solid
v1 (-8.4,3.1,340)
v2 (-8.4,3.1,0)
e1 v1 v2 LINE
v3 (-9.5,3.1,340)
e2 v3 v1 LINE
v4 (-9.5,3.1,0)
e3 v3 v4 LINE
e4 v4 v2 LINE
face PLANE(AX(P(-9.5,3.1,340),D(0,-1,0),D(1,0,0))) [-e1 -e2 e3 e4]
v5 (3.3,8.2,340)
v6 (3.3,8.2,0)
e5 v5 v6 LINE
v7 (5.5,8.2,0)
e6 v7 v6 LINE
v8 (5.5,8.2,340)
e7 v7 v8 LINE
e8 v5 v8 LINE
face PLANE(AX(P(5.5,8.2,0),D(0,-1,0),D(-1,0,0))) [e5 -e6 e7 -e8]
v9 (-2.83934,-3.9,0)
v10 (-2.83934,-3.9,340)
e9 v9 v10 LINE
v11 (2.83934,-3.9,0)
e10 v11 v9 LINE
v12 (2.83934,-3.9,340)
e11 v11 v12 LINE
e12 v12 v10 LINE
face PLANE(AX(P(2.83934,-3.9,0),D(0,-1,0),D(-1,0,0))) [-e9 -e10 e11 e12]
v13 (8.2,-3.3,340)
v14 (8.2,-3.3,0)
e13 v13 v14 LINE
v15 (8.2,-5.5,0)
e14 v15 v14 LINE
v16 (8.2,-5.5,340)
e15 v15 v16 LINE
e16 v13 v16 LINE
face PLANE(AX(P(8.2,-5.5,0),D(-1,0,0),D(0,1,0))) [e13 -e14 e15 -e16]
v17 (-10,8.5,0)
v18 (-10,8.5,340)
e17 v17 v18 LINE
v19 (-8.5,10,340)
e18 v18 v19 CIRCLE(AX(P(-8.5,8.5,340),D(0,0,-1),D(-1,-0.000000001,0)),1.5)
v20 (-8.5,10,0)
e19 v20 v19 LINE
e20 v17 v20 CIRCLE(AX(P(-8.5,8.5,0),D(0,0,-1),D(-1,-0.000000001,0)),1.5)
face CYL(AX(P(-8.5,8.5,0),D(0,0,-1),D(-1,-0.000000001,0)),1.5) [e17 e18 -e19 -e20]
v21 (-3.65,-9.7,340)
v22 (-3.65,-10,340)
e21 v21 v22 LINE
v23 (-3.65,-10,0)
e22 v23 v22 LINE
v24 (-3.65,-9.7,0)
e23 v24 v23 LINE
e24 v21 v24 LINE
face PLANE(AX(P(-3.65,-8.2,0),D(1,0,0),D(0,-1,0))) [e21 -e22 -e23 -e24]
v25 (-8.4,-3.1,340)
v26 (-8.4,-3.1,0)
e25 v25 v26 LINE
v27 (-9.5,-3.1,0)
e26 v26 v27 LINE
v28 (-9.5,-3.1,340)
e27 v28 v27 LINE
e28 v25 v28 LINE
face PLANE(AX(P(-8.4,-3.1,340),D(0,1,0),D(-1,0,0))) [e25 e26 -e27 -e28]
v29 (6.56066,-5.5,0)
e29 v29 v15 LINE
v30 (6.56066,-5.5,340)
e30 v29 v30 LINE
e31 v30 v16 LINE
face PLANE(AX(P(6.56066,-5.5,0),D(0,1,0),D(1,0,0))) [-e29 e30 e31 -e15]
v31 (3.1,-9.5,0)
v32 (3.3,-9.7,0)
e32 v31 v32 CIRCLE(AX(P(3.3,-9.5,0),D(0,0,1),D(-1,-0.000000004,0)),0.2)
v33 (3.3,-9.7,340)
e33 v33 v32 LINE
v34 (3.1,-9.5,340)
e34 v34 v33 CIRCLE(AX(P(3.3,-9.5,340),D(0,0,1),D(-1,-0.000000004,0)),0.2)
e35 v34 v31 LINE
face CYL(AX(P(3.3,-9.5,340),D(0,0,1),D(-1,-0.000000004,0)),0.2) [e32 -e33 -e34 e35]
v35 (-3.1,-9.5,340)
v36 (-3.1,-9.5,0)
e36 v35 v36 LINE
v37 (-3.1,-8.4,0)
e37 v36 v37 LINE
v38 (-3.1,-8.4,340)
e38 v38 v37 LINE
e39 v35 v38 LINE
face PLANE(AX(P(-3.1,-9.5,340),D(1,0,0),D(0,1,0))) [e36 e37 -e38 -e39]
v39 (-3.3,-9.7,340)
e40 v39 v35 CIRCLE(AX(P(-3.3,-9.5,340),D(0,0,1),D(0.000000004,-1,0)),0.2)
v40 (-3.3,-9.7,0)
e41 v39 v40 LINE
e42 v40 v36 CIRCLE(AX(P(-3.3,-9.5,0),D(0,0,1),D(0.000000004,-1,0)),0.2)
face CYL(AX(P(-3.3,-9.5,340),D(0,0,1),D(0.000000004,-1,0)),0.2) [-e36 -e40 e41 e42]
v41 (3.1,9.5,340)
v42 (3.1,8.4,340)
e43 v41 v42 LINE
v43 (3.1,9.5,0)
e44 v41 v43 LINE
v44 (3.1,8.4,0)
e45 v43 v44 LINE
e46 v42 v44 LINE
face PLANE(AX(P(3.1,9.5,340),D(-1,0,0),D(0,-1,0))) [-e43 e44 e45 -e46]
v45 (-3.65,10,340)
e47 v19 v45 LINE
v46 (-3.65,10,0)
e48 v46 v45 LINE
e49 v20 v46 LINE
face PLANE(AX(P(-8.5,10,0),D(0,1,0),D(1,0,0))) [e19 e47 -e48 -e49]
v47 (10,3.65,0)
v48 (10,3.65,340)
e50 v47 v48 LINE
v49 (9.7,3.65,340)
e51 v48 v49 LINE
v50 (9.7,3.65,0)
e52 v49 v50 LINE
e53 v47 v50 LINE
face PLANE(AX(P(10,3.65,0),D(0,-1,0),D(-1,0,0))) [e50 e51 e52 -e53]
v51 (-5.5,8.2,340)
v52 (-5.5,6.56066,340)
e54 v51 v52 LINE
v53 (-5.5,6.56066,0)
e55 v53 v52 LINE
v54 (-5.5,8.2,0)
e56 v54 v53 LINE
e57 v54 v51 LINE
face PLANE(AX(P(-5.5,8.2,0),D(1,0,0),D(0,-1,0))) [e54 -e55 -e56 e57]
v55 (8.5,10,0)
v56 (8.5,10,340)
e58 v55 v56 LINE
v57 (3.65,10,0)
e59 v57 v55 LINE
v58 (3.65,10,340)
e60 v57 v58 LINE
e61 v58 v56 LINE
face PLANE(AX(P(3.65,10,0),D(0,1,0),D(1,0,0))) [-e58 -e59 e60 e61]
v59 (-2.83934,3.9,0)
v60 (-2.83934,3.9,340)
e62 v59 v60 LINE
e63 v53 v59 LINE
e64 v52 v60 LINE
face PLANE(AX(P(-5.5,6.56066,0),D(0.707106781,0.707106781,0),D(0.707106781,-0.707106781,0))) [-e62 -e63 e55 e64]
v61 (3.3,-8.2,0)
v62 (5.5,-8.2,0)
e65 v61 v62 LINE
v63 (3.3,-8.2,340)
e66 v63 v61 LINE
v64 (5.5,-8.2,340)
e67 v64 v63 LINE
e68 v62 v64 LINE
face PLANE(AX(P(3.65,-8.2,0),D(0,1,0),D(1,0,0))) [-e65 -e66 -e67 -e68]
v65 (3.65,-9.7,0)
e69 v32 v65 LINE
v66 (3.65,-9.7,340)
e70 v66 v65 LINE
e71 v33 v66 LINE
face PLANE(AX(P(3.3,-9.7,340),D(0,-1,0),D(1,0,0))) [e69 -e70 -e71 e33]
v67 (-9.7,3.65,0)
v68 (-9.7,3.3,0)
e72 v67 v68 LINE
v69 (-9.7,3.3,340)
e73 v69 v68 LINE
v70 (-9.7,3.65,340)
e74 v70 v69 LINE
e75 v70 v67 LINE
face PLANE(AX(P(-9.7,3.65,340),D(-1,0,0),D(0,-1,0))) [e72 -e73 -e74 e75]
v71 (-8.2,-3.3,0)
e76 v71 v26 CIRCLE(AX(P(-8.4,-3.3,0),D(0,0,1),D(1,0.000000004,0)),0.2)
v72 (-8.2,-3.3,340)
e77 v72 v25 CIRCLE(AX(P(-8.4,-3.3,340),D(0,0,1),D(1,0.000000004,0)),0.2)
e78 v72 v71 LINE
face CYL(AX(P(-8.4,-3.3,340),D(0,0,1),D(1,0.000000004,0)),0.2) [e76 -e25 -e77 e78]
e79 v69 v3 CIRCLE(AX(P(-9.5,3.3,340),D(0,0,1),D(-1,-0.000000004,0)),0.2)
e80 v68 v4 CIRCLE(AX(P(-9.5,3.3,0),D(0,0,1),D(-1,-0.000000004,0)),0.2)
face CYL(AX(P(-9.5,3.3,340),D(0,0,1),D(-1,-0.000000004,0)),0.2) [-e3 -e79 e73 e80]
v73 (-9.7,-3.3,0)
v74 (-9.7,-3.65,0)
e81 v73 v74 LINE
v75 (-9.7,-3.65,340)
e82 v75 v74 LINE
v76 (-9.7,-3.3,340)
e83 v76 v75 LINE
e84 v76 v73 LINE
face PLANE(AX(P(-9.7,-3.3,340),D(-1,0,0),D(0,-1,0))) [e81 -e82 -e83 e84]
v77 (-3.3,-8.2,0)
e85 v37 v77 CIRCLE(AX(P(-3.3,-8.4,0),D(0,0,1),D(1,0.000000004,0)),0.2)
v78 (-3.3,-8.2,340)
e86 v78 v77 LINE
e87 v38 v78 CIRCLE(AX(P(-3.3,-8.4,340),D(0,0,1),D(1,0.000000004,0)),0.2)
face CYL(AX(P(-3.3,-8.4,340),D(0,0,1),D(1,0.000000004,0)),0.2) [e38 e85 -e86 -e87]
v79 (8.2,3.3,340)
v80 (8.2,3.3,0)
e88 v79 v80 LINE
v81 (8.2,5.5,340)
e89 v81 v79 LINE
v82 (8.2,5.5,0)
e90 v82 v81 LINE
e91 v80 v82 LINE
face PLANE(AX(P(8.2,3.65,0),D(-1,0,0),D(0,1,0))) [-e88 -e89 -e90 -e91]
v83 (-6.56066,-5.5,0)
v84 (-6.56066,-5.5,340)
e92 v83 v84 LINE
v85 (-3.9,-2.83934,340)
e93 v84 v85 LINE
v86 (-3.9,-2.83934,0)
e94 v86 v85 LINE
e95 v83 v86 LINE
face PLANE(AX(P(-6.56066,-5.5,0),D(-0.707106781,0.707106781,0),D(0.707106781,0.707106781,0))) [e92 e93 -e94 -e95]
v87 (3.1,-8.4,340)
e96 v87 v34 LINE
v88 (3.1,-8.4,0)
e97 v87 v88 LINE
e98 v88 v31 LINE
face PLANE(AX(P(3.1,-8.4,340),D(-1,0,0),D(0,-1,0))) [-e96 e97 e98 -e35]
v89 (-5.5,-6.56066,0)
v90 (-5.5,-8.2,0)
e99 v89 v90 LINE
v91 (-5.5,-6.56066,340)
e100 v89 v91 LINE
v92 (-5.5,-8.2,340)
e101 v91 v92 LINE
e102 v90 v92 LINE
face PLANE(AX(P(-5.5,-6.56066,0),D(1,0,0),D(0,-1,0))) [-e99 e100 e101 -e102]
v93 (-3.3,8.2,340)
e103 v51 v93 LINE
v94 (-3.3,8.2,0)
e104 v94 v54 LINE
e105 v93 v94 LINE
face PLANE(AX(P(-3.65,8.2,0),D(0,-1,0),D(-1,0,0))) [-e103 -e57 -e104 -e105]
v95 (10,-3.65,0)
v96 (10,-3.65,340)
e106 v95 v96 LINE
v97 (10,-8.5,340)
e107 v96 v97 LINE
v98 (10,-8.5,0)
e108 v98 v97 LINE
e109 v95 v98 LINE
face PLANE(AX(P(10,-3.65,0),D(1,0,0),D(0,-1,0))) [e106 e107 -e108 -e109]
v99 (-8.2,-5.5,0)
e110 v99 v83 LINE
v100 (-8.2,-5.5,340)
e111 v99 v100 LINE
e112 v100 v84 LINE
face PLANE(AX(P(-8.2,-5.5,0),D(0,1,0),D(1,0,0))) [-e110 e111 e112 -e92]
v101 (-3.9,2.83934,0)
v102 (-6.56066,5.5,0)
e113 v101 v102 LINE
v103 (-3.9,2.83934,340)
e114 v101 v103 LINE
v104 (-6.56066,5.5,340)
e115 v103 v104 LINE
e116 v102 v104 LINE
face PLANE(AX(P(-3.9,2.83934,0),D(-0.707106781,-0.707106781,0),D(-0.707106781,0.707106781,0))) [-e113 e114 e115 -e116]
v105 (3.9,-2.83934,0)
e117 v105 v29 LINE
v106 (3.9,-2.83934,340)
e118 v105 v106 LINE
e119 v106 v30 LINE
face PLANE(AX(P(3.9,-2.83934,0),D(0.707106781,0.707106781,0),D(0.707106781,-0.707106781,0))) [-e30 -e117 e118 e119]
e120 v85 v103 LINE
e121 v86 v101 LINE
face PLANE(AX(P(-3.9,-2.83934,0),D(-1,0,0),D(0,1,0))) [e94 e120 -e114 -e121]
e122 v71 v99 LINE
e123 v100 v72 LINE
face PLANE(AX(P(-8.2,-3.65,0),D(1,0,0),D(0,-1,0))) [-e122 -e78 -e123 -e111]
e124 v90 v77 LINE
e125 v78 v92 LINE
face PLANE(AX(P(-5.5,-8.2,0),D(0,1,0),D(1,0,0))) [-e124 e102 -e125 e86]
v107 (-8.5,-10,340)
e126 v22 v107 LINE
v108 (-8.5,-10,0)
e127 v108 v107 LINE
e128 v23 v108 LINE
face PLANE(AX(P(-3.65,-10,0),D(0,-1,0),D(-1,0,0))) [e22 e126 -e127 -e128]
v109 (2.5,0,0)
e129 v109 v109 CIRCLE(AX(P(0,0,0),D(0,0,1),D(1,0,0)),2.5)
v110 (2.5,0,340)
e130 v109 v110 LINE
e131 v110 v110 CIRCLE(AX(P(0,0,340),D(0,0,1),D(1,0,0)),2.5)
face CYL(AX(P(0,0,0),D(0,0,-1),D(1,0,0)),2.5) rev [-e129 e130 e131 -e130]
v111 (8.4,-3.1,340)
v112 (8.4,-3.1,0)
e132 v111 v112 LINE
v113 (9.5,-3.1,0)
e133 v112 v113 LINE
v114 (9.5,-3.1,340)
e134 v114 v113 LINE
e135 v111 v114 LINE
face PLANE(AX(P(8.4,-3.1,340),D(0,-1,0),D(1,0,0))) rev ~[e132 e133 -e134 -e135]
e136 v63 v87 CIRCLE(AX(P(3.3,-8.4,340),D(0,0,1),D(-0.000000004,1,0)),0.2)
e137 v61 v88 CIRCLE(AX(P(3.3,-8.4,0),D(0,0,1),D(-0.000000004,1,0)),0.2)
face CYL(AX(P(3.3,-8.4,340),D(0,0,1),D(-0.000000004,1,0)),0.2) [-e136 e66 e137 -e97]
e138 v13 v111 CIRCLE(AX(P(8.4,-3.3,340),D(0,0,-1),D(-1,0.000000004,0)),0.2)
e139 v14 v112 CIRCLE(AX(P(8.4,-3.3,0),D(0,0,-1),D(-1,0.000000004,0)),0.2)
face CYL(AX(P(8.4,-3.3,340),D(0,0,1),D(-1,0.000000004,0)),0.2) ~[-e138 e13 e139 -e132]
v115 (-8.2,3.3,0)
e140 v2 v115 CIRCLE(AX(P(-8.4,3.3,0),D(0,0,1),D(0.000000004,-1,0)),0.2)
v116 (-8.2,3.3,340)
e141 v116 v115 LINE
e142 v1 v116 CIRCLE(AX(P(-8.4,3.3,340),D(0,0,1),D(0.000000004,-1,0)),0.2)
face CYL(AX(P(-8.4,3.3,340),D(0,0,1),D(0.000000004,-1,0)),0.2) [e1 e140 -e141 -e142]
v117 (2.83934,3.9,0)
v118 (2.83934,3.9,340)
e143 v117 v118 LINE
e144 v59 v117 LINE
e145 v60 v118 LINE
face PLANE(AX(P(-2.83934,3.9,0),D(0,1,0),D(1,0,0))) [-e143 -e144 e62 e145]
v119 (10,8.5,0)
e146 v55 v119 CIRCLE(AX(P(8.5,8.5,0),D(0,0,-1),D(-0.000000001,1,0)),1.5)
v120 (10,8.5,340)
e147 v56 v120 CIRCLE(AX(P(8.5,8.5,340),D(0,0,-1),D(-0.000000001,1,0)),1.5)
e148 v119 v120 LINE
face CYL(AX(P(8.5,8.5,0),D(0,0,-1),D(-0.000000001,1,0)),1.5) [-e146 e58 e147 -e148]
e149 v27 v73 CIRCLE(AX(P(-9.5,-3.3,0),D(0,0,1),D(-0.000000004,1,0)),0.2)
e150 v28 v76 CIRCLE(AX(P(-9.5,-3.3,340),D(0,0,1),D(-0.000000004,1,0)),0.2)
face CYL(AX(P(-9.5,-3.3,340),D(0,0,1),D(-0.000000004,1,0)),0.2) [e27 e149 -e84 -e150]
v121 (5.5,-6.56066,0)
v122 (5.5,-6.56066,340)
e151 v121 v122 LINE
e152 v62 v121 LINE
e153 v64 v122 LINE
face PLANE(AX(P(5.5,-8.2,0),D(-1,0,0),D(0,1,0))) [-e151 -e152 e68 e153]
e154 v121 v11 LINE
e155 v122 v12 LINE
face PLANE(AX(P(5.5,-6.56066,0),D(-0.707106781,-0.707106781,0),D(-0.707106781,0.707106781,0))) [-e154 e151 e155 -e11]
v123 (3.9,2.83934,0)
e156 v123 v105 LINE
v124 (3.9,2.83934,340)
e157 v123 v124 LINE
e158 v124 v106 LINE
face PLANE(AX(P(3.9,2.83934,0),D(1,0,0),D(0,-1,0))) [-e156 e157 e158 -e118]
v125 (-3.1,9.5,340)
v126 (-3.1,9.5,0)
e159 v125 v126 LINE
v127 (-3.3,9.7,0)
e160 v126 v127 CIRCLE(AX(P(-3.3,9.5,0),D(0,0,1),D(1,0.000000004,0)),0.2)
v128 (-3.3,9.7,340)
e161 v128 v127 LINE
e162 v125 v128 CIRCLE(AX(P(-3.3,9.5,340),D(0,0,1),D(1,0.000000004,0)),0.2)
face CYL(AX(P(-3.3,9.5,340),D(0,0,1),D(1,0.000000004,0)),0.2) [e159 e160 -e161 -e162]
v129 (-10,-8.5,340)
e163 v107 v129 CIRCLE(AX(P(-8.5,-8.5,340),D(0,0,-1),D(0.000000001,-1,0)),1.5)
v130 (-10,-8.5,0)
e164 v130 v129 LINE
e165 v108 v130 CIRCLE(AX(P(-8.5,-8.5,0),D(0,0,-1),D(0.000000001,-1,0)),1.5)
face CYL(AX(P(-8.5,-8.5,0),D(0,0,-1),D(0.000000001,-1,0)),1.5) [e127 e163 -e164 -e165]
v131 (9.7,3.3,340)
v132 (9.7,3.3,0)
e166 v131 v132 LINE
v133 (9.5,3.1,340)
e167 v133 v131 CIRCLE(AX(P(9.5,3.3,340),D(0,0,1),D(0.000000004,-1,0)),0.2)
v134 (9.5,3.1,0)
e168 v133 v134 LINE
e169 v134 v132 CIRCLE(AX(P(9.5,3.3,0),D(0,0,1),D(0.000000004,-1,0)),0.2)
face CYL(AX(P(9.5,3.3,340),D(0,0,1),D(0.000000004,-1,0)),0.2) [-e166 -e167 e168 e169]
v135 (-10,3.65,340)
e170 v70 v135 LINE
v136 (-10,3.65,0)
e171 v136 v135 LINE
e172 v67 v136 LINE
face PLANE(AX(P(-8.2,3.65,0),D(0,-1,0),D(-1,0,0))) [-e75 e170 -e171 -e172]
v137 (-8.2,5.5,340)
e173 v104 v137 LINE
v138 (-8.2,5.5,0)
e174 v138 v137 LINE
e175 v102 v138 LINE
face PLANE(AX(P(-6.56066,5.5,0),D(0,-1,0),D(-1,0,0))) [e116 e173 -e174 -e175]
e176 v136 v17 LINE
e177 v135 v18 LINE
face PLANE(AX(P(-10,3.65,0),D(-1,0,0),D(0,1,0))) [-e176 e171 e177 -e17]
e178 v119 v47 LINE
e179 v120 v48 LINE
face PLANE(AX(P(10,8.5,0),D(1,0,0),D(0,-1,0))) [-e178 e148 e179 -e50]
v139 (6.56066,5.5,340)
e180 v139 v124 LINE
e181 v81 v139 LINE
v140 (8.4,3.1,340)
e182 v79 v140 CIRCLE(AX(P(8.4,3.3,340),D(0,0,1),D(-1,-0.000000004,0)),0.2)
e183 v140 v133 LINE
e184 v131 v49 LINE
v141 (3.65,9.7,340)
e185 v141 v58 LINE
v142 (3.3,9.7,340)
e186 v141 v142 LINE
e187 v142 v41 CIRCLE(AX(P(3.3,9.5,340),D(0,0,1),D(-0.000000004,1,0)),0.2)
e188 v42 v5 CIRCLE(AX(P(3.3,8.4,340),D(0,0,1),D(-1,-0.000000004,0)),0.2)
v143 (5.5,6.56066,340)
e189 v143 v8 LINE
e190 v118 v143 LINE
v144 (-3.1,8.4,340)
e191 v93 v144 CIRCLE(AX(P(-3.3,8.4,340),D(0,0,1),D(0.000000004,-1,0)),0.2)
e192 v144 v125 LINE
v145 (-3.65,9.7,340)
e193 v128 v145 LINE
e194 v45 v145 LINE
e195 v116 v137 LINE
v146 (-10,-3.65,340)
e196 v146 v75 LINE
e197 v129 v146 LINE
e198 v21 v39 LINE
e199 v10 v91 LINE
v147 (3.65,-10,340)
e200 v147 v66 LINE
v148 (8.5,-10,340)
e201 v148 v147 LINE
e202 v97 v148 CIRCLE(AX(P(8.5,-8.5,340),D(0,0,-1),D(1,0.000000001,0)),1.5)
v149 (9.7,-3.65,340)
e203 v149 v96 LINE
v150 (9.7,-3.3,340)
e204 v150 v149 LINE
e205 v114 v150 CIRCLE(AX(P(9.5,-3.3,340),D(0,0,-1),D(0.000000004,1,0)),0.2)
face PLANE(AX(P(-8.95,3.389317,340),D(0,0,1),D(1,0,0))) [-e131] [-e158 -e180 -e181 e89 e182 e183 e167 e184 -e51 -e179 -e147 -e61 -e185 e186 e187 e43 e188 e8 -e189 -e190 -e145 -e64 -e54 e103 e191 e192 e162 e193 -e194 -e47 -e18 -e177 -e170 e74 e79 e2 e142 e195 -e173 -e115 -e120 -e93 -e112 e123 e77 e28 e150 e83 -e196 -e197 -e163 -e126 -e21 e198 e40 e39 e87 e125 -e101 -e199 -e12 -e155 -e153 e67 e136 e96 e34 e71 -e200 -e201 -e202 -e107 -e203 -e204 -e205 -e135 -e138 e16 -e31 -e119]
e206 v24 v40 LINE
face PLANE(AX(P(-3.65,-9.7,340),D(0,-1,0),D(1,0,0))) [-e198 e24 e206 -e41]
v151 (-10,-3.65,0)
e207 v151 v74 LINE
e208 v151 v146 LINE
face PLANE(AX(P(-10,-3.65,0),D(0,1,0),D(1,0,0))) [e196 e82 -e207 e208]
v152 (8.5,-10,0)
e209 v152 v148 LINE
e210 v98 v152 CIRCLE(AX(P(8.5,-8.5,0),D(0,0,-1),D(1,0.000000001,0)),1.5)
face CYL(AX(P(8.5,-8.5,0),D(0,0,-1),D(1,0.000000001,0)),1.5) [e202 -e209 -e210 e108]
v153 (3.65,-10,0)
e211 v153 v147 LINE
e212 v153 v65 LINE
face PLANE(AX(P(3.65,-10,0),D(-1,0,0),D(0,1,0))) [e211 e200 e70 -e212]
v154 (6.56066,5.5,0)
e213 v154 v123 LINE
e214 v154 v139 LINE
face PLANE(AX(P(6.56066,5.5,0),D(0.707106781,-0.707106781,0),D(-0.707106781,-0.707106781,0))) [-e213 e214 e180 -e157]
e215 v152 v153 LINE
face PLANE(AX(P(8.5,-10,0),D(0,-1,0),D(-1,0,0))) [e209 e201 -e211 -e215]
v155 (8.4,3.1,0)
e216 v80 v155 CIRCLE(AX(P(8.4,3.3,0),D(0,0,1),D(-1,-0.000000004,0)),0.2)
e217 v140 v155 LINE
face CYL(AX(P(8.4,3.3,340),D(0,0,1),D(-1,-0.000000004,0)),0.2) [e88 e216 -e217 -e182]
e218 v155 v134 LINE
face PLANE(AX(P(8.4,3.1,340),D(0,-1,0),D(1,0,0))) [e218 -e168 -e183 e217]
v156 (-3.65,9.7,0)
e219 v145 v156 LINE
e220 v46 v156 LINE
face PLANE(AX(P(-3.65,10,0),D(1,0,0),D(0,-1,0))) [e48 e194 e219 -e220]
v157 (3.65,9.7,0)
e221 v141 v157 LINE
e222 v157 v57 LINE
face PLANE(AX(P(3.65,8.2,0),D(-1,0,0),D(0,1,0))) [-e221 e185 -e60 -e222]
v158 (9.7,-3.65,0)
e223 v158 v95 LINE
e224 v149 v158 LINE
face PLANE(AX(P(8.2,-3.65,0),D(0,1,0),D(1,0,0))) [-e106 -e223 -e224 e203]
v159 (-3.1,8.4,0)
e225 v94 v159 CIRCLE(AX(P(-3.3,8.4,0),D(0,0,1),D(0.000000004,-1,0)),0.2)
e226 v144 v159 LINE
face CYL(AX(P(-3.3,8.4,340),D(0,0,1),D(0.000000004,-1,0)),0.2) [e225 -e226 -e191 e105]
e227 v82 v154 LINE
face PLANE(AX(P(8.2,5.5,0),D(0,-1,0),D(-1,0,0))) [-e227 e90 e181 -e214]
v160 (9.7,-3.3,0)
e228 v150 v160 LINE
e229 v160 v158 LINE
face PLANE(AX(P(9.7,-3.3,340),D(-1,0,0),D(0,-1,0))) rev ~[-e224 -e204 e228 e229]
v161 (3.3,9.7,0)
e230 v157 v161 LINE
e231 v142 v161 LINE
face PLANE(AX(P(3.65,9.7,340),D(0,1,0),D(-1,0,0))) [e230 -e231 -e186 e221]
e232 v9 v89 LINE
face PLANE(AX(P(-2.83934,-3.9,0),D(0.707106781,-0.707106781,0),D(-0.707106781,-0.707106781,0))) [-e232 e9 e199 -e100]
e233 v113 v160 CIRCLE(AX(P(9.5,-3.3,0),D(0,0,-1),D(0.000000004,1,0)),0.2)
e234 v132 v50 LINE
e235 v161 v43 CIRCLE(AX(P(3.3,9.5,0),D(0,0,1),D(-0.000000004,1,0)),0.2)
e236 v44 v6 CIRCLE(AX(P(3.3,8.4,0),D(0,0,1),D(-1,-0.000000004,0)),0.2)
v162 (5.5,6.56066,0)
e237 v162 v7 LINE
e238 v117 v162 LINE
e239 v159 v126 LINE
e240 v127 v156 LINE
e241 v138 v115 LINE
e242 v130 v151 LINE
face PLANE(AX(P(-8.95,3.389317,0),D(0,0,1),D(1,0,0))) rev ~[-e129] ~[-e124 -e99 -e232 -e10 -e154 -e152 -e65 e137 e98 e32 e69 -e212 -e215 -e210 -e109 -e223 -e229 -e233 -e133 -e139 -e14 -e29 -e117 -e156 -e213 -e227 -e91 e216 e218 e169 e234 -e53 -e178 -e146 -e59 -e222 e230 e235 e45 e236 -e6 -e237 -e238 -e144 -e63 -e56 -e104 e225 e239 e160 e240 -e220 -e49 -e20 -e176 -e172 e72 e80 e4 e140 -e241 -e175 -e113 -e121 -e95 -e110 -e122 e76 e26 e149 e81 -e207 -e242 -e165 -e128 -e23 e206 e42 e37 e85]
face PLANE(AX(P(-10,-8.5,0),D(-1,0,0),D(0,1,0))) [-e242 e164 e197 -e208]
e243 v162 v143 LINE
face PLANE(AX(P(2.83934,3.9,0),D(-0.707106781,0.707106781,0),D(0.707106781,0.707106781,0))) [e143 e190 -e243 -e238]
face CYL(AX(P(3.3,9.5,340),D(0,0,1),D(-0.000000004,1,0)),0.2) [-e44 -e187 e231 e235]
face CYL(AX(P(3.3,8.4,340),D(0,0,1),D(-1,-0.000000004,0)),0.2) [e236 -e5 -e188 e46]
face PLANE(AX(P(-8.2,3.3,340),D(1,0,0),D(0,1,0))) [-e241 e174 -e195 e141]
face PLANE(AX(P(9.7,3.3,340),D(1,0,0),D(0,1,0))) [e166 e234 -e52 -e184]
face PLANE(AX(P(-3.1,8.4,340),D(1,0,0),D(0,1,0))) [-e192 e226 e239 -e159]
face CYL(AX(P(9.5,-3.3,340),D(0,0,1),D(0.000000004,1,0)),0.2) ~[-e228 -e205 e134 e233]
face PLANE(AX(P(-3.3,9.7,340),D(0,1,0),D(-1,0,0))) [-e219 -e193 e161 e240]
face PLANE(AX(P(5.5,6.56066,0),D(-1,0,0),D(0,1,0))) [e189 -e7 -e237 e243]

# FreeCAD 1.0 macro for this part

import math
import FreeCAD as App
import Part
import Sketcher

V = App.Vector
Q = App.Units.Quantity

doc = App.newDocument("Part")
params = doc.addObject("Spreadsheet::Sheet", "Params")
for row, (alias, value) in enumerate([
    ("sketch1_diameter", "5 mm"),
    ("sketch1_radius", "1.5 mm"),
    ("sketch1_width", "1.8 mm"),
    ("sketch1_width2", "4.85 mm"),
    ("pad1_length", "340 mm"),
    ("sketch2_radius", "0.2 mm"),
    ("sketch2_width", "1.5 mm"),
    ("sketch2_width2", "0.35 mm"),
    ("pad2_length", "340 mm"),
], start=1):
    params.set(f"A{row}", alias)
    params.set(f"B{row}", "=" + value)
    params.setAlias(f"B{row}", alias)

body = doc.addObject("PartDesign::Body", "Body")

# Sketch on XY plane
sketch1 = body.newObject("Sketcher::SketchObject", "Sketch")
sketch1.AttachmentSupport = (doc.getObject("XY_Plane"), [""])
sketch1.MapMode = "FlatFace"
sketch1.addGeometry(Part.LineSegment(V(8.5, 10, 0), V(3.6, 10, 0)), False)
sketch1.addGeometry(Part.LineSegment(V(3.6, 10, 0), V(3.6, 8.2, 0)), False)
sketch1.addGeometry(Part.LineSegment(V(3.6, 8.2, 0), V(5.5, 8.2, 0)), False)
sketch1.addGeometry(Part.LineSegment(V(5.5, 8.2, 0), V(5.5, 6.6, 0)), False)
sketch1.addGeometry(Part.LineSegment(V(5.5, 6.6, 0), V(2.8, 3.9, 0)), False)
sketch1.addGeometry(Part.LineSegment(V(2.8, 3.9, 0), V(-2.8, 3.9, 0)), False)
sketch1.addGeometry(Part.LineSegment(V(-2.8, 3.9, 0), V(-5.5, 6.6, 0)), False)
sketch1.addGeometry(Part.LineSegment(V(-5.5, 6.6, 0), V(-5.5, 8.2, 0)), False)
sketch1.addGeometry(Part.LineSegment(V(-5.5, 8.2, 0), V(-3.6, 8.2, 0)), False)
sketch1.addGeometry(Part.LineSegment(V(-3.6, 8.2, 0), V(-3.6, 10, 0)), False)
sketch1.addGeometry(Part.LineSegment(V(-3.6, 10, 0), V(-8.5, 10, 0)), False)
sketch1.addGeometry(Part.ArcOfCircle(Part.Circle(V(-8.5, 8.5, 0), V(0, 0, 1), 1.5), math.radians(90), math.radians(180)), False)
sketch1.addGeometry(Part.LineSegment(V(-10, 8.5, 0), V(-10, 3.6, 0)), False)
sketch1.addGeometry(Part.LineSegment(V(-10, 3.6, 0), V(-8.2, 3.6, 0)), False)
sketch1.addGeometry(Part.LineSegment(V(-8.2, 3.6, 0), V(-8.2, 5.5, 0)), False)
sketch1.addGeometry(Part.LineSegment(V(-8.2, 5.5, 0), V(-6.6, 5.5, 0)), False)
sketch1.addGeometry(Part.LineSegment(V(-6.6, 5.5, 0), V(-3.9, 2.8, 0)), False)
sketch1.addGeometry(Part.LineSegment(V(-3.9, 2.8, 0), V(-3.9, -2.8, 0)), False)
sketch1.addGeometry(Part.LineSegment(V(-3.9, -2.8, 0), V(-6.6, -5.5, 0)), False)
sketch1.addGeometry(Part.LineSegment(V(-6.6, -5.5, 0), V(-8.2, -5.5, 0)), False)
sketch1.addGeometry(Part.LineSegment(V(-8.2, -5.5, 0), V(-8.2, -3.6, 0)), False)
sketch1.addGeometry(Part.LineSegment(V(-8.2, -3.6, 0), V(-10, -3.6, 0)), False)
sketch1.addGeometry(Part.LineSegment(V(-10, -3.6, 0), V(-10, -8.5, 0)), False)
sketch1.addGeometry(Part.ArcOfCircle(Part.Circle(V(-8.5, -8.5, 0), V(0, 0, 1), 1.5), math.radians(180), math.radians(270)), False)
sketch1.addGeometry(Part.LineSegment(V(-8.5, -10, 0), V(-3.6, -10, 0)), False)
sketch1.addGeometry(Part.LineSegment(V(-3.6, -10, 0), V(-3.6, -8.2, 0)), False)
sketch1.addGeometry(Part.LineSegment(V(-3.6, -8.2, 0), V(-5.5, -8.2, 0)), False)
sketch1.addGeometry(Part.LineSegment(V(-5.5, -8.2, 0), V(-5.5, -6.6, 0)), False)
sketch1.addGeometry(Part.LineSegment(V(-5.5, -6.6, 0), V(-2.8, -3.9, 0)), False)
sketch1.addGeometry(Part.LineSegment(V(-2.8, -3.9, 0), V(2.8, -3.9, 0)), False)
sketch1.addGeometry(Part.LineSegment(V(2.8, -3.9, 0), V(5.5, -6.6, 0)), False)
sketch1.addGeometry(Part.LineSegment(V(5.5, -6.6, 0), V(5.5, -8.2, 0)), False)
sketch1.addGeometry(Part.LineSegment(V(5.5, -8.2, 0), V(3.6, -8.2, 0)), False)
sketch1.addGeometry(Part.LineSegment(V(3.6, -8.2, 0), V(3.6, -10, 0)), False)
sketch1.addGeometry(Part.LineSegment(V(3.6, -10, 0), V(8.5, -10, 0)), False)
sketch1.addGeometry(Part.ArcOfCircle(Part.Circle(V(8.5, -8.5, 0), V(0, 0, 1), 1.5), math.radians(-90), math.radians(0)), False)
sketch1.addGeometry(Part.LineSegment(V(10, -8.5, 0), V(10, -3.6, 0)), False)
sketch1.addGeometry(Part.LineSegment(V(10, -3.6, 0), V(8.2, -3.6, 0)), False)
sketch1.addGeometry(Part.LineSegment(V(8.2, -3.6, 0), V(8.2, -5.5, 0)), False)
sketch1.addGeometry(Part.LineSegment(V(8.2, -5.5, 0), V(6.6, -5.5, 0)), False)
sketch1.addGeometry(Part.LineSegment(V(6.6, -5.5, 0), V(3.9, -2.8, 0)), False)
sketch1.addGeometry(Part.LineSegment(V(3.9, -2.8, 0), V(3.9, 2.8, 0)), False)
sketch1.addGeometry(Part.LineSegment(V(3.9, 2.8, 0), V(6.6, 5.5, 0)), False)
sketch1.addGeometry(Part.LineSegment(V(6.6, 5.5, 0), V(8.2, 5.5, 0)), False)
sketch1.addGeometry(Part.LineSegment(V(8.2, 5.5, 0), V(8.2, 3.6, 0)), False)
sketch1.addGeometry(Part.LineSegment(V(8.2, 3.6, 0), V(10, 3.6, 0)), False)
sketch1.addGeometry(Part.LineSegment(V(10, 3.6, 0), V(10, 8.5, 0)), False)
sketch1.addGeometry(Part.ArcOfCircle(Part.Circle(V(8.5, 8.5, 0), V(0, 0, 1), 1.5), math.radians(0), math.radians(90)), False)
sketch1.addGeometry(Part.Circle(V(0, 0, 0), V(0, 0, 1), 2.5), False)
sketch1.addConstraint(Sketcher.Constraint("Coincident", 0, 2, 1, 1))
sketch1.addConstraint(Sketcher.Constraint("Coincident", 1, 2, 2, 1))
sketch1.addConstraint(Sketcher.Constraint("Coincident", 2, 2, 3, 1))
sketch1.addConstraint(Sketcher.Constraint("Coincident", 3, 2, 4, 1))
sketch1.addConstraint(Sketcher.Constraint("Coincident", 4, 2, 5, 1))
sketch1.addConstraint(Sketcher.Constraint("Coincident", 5, 2, 6, 1))
sketch1.addConstraint(Sketcher.Constraint("Coincident", 6, 2, 7, 1))
sketch1.addConstraint(Sketcher.Constraint("Coincident", 7, 2, 8, 1))
sketch1.addConstraint(Sketcher.Constraint("Coincident", 8, 2, 9, 1))
sketch1.addConstraint(Sketcher.Constraint("Coincident", 9, 2, 10, 1))
sketch1.addConstraint(Sketcher.Constraint("Tangent", 10, 2, 11, 1))
sketch1.addConstraint(Sketcher.Constraint("Tangent", 11, 2, 12, 1))
sketch1.addConstraint(Sketcher.Constraint("Coincident", 12, 2, 13, 1))
sketch1.addConstraint(Sketcher.Constraint("Coincident", 13, 2, 14, 1))
sketch1.addConstraint(Sketcher.Constraint("Coincident", 14, 2, 15, 1))
sketch1.addConstraint(Sketcher.Constraint("Coincident", 15, 2, 16, 1))
sketch1.addConstraint(Sketcher.Constraint("Coincident", 16, 2, 17, 1))
sketch1.addConstraint(Sketcher.Constraint("Coincident", 17, 2, 18, 1))
sketch1.addConstraint(Sketcher.Constraint("Coincident", 18, 2, 19, 1))
sketch1.addConstraint(Sketcher.Constraint("Coincident", 19, 2, 20, 1))
sketch1.addConstraint(Sketcher.Constraint("Coincident", 20, 2, 21, 1))
sketch1.addConstraint(Sketcher.Constraint("Coincident", 21, 2, 22, 1))
sketch1.addConstraint(Sketcher.Constraint("Tangent", 22, 2, 23, 1))
sketch1.addConstraint(Sketcher.Constraint("Tangent", 23, 2, 24, 1))
sketch1.addConstraint(Sketcher.Constraint("Coincident", 24, 2, 25, 1))
sketch1.addConstraint(Sketcher.Constraint("Coincident", 25, 2, 26, 1))
sketch1.addConstraint(Sketcher.Constraint("Coincident", 26, 2, 27, 1))
sketch1.addConstraint(Sketcher.Constraint("Coincident", 27, 2, 28, 1))
sketch1.addConstraint(Sketcher.Constraint("Coincident", 28, 2, 29, 1))
sketch1.addConstraint(Sketcher.Constraint("Coincident", 29, 2, 30, 1))
sketch1.addConstraint(Sketcher.Constraint("Coincident", 30, 2, 31, 1))
sketch1.addConstraint(Sketcher.Constraint("Coincident", 31, 2, 32, 1))
sketch1.addConstraint(Sketcher.Constraint("Coincident", 32, 2, 33, 1))
sketch1.addConstraint(Sketcher.Constraint("Coincident", 33, 2, 34, 1))
sketch1.addConstraint(Sketcher.Constraint("Tangent", 34, 2, 35, 1))
sketch1.addConstraint(Sketcher.Constraint("Tangent", 35, 2, 36, 1))
sketch1.addConstraint(Sketcher.Constraint("Coincident", 36, 2, 37, 1))
sketch1.addConstraint(Sketcher.Constraint("Coincident", 37, 2, 38, 1))
sketch1.addConstraint(Sketcher.Constraint("Coincident", 38, 2, 39, 1))
sketch1.addConstraint(Sketcher.Constraint("Coincident", 39, 2, 40, 1))
sketch1.addConstraint(Sketcher.Constraint("Coincident", 40, 2, 41, 1))
sketch1.addConstraint(Sketcher.Constraint("Coincident", 41, 2, 42, 1))
sketch1.addConstraint(Sketcher.Constraint("Coincident", 42, 2, 43, 1))
sketch1.addConstraint(Sketcher.Constraint("Coincident", 43, 2, 44, 1))
sketch1.addConstraint(Sketcher.Constraint("Coincident", 44, 2, 45, 1))
sketch1.addConstraint(Sketcher.Constraint("Coincident", 45, 2, 46, 1))
sketch1.addConstraint(Sketcher.Constraint("Tangent", 46, 2, 47, 1))
sketch1.addConstraint(Sketcher.Constraint("Tangent", 47, 2, 0, 1))
sketch1.addConstraint(Sketcher.Constraint("Horizontal", 0))
sketch1.addConstraint(Sketcher.Constraint("Vertical", 1))
sketch1.addConstraint(Sketcher.Constraint("Horizontal", 2))
sketch1.addConstraint(Sketcher.Constraint("Vertical", 3))
sketch1.addConstraint(Sketcher.Constraint("Horizontal", 5))
sketch1.addConstraint(Sketcher.Constraint("Vertical", 7))
sketch1.addConstraint(Sketcher.Constraint("Horizontal", 8))
sketch1.addConstraint(Sketcher.Constraint("Vertical", 9))
sketch1.addConstraint(Sketcher.Constraint("Horizontal", 10))
sketch1.addConstraint(Sketcher.Constraint("Vertical", 12))
sketch1.addConstraint(Sketcher.Constraint("Horizontal", 13))
sketch1.addConstraint(Sketcher.Constraint("Vertical", 14))
sketch1.addConstraint(Sketcher.Constraint("Horizontal", 15))
sketch1.addConstraint(Sketcher.Constraint("Vertical", 17))
sketch1.addConstraint(Sketcher.Constraint("Horizontal", 19))
sketch1.addConstraint(Sketcher.Constraint("Vertical", 20))
sketch1.addConstraint(Sketcher.Constraint("Horizontal", 21))
sketch1.addConstraint(Sketcher.Constraint("Vertical", 22))
sketch1.addConstraint(Sketcher.Constraint("Horizontal", 24))
sketch1.addConstraint(Sketcher.Constraint("Vertical", 25))
sketch1.addConstraint(Sketcher.Constraint("Horizontal", 26))
sketch1.addConstraint(Sketcher.Constraint("Vertical", 27))
sketch1.addConstraint(Sketcher.Constraint("Horizontal", 29))
sketch1.addConstraint(Sketcher.Constraint("Vertical", 31))
sketch1.addConstraint(Sketcher.Constraint("Horizontal", 32))
sketch1.addConstraint(Sketcher.Constraint("Vertical", 33))
sketch1.addConstraint(Sketcher.Constraint("Horizontal", 34))
sketch1.addConstraint(Sketcher.Constraint("Vertical", 36))
sketch1.addConstraint(Sketcher.Constraint("Horizontal", 37))
sketch1.addConstraint(Sketcher.Constraint("Vertical", 38))
sketch1.addConstraint(Sketcher.Constraint("Horizontal", 39))
sketch1.addConstraint(Sketcher.Constraint("Vertical", 41))
sketch1.addConstraint(Sketcher.Constraint("Horizontal", 43))
sketch1.addConstraint(Sketcher.Constraint("Vertical", 44))
sketch1.addConstraint(Sketcher.Constraint("Horizontal", 45))
sketch1.addConstraint(Sketcher.Constraint("Vertical", 46))
sketch1.addConstraint(Sketcher.Constraint("Coincident", 48, 3, -1, 1))
sketch1.addConstraint(Sketcher.Constraint("Equal", 11, 23))
sketch1.addConstraint(Sketcher.Constraint("Equal", 23, 35))
sketch1.addConstraint(Sketcher.Constraint("Equal", 35, 47))
sketch1.addConstraint(Sketcher.Constraint("Symmetric", 11, 3, 35, 3, -1, 1))
sketch1.addConstraint(Sketcher.Constraint("Symmetric", 23, 3, 47, 3, -1, 1))
sketch1.addConstraint(Sketcher.Constraint("Symmetric", 1, 2, 25, 2, -1, 1))
sketch1.addConstraint(Sketcher.Constraint("Symmetric", 3, 2, 27, 2, -1, 1))
sketch1.addConstraint(Sketcher.Constraint("Symmetric", 4, 2, 28, 2, -1, 1))
sketch1.addConstraint(Sketcher.Constraint("Symmetric", 6, 2, 30, 2, -1, 1))
sketch1.addConstraint(Sketcher.Constraint("Symmetric", 8, 2, 32, 2, -1, 1))
sketch1.addConstraint(Sketcher.Constraint("Symmetric", 13, 2, 37, 2, -1, 1))
sketch1.addConstraint(Sketcher.Constraint("Symmetric", 15, 2, 39, 2, -1, 1))
sketch1.addConstraint(Sketcher.Constraint("Symmetric", 16, 2, 40, 2, -1, 1))
sketch1.addConstraint(Sketcher.Constraint("Symmetric", 18, 2, 42, 2, -1, 1))
sketch1.addConstraint(Sketcher.Constraint("Symmetric", 20, 2, 44, 2, -1, 1))
sketch1.addConstraint(Sketcher.Constraint("Symmetric", 23, 3, 35, 3, -2))
sketch1.addConstraint(Sketcher.Constraint("Symmetric", 3, 2, 6, 2, -2))
sketch1.addConstraint(Sketcher.Constraint("Symmetric", 1, 2, 8, 2, -2))
sketch1.addConstraint(Sketcher.Constraint("Symmetric", 20, 2, 37, 2, -2))
sketch1.addConstraint(Sketcher.Constraint("Symmetric", 18, 2, 39, 2, -2))
sketch1.addConstraint(Sketcher.Constraint("Perpendicular", 4, 6))
sketch1.addConstraint(Sketcher.Constraint("Parallel", 6, 16))
sketch1.addConstraint(Sketcher.Constraint("Perpendicular", 16, 18))
sketch1.addConstraint(Sketcher.Constraint("Perpendicular", 28, 30))
sketch1.addConstraint(Sketcher.Constraint("Perpendicular", 40, 42))
sketch1.addConstraint(Sketcher.Constraint("Horizontal", 17, 2, 40, 2))
sketch1.addConstraint(Sketcher.Constraint("Equal", 45, 1))
sketch1.addConstraint(Sketcher.Constraint("Equal", 43, 3))
sketch1.addConstraint(Sketcher.Constraint("Equal", 34, 12))
sketch1.addConstraint(Sketcher.Constraint("Equal", 32, 14))
sketch1.addConstraint(Sketcher.Constraint("Equal", 29, 17))
sketch1.addConstraint(Sketcher.Constraint("Equal", 6, 16))
sketch1.addConstraint(Sketcher.Constraint("Diameter", 48, Q("5 mm")))
sketch1.addConstraint(Sketcher.Constraint("Radius", 11, Q("1.5 mm")))
sketch1.addConstraint(Sketcher.Constraint("DistanceX", 13, 1, 13, 2, Q("1.8 mm")))
sketch1.addConstraint(Sketcher.Constraint("DistanceY", -1, 1, 0, 2, Q("10 mm")))
sketch1.addConstraint(Sketcher.Constraint("DistanceX", 2, 2, 47, 3, Q("3 mm")))
sketch1.addConstraint(Sketcher.Constraint("DistanceX", 0, 2, 0, 1, Q("4.85 mm")))
sketch1.addConstraint(Sketcher.Constraint("DistanceY", -1, 1, 4, 2, Q("3.9 mm")))
sketch1.addConstraint(Sketcher.Constraint("DistanceX", 5, 2, 5, 1, Q("5.67868 mm")))
sketch1.setExpression("Constraints[117]", "Params.sketch1_diameter")
sketch1.setExpression("Constraints[118]", "Params.sketch1_radius")
sketch1.setExpression("Constraints[119]", "Params.sketch1_width")
sketch1.setExpression("Constraints[122]", "Params.sketch1_width2")
pad1 = body.newObject("PartDesign::Pad", "Pad")
pad1.Profile = sketch1
pad1.setExpression("Length", "Params.pad1_length")

# Sketch on XY plane
sketch2 = body.newObject("Sketcher::SketchObject", "Sketch001")
sketch2.AttachmentSupport = (doc.getObject("XY_Plane"), [""])
sketch2.MapMode = "FlatFace"
sketch2.AttachmentOffset = App.Placement(V(0, 0, 340), App.Rotation())
sketch2.addGeometry(Part.LineSegment(V(-8.2, 3.65, 0), V(-9.7, 3.65, 0)), False)
sketch2.addGeometry(Part.LineSegment(V(-9.7, 3.65, 0), V(-9.7, 3.3, 0)), False)
sketch2.addGeometry(Part.ArcOfCircle(Part.Circle(V(-9.5, 3.3, 0), V(0, 0, 1), 0.2), math.radians(-180), math.radians(-90)), False)
sketch2.addGeometry(Part.LineSegment(V(-9.5, 3.1, 0), V(-8.4, 3.1, 0)), False)
sketch2.addGeometry(Part.ArcOfCircle(Part.Circle(V(-8.4, 3.3, 0), V(0, 0, 1), 0.2), math.radians(-90), math.radians(0)), False)
sketch2.addGeometry(Part.LineSegment(V(-8.2, 3.3, 0), V(-8.2, 3.65, 0)), False)
sketch2.addGeometry(Part.LineSegment(V(-3.65, 9.7, 0), V(-3.65, 8.2, 0)), False)
sketch2.addGeometry(Part.LineSegment(V(-3.65, 8.2, 0), V(-3.3, 8.2, 0)), False)
sketch2.addGeometry(Part.ArcOfCircle(Part.Circle(V(-3.3, 8.4, 0), V(0, 0, 1), 0.2), math.radians(-90), math.radians(0)), False)
sketch2.addGeometry(Part.LineSegment(V(-3.1, 8.4, 0), V(-3.1, 9.5, 0)), False)
sketch2.addGeometry(Part.ArcOfCircle(Part.Circle(V(-3.3, 9.5, 0), V(0, 0, 1), 0.2), math.radians(0), math.radians(90)), False)
sketch2.addGeometry(Part.LineSegment(V(-3.3, 9.7, 0), V(-3.65, 9.7, 0)), False)
sketch2.addGeometry(Part.LineSegment(V(3.65, 8.2, 0), V(3.65, 9.7, 0)), False)
sketch2.addGeometry(Part.LineSegment(V(3.65, 9.7, 0), V(3.3, 9.7, 0)), False)
sketch2.addGeometry(Part.ArcOfCircle(Part.Circle(V(3.3, 9.5, 0), V(0, 0, 1), 0.2), math.radians(90), math.radians(180)), False)
sketch2.addGeometry(Part.LineSegment(V(3.1, 9.5, 0), V(3.1, 8.4, 0)), False)
sketch2.addGeometry(Part.ArcOfCircle(Part.Circle(V(3.3, 8.4, 0), V(0, 0, 1), 0.2), math.radians(-180), math.radians(-90)), False)
sketch2.addGeometry(Part.LineSegment(V(3.3, 8.2, 0), V(3.65, 8.2, 0)), False)
sketch2.addGeometry(Part.LineSegment(V(9.7, 3.65, 0), V(8.2, 3.65, 0)), False)
sketch2.addGeometry(Part.LineSegment(V(8.2, 3.65, 0), V(8.2, 3.3, 0)), False)
sketch2.addGeometry(Part.ArcOfCircle(Part.Circle(V(8.4, 3.3, 0), V(0, 0, 1), 0.2), math.radians(-180), math.radians(-90)), False)
sketch2.addGeometry(Part.LineSegment(V(8.4, 3.1, 0), V(9.5, 3.1, 0)), False)
sketch2.addGeometry(Part.ArcOfCircle(Part.Circle(V(9.5, 3.3, 0), V(0, 0, 1), 0.2), math.radians(-90), math.radians(0)), False)
sketch2.addGeometry(Part.LineSegment(V(9.7, 3.3, 0), V(9.7, 3.65, 0)), False)
sketch2.addGeometry(Part.LineSegment(V(3.65, -9.7, 0), V(3.65, -8.2, 0)), False)
sketch2.addGeometry(Part.LineSegment(V(3.65, -8.2, 0), V(3.3, -8.2, 0)), False)
sketch2.addGeometry(Part.ArcOfCircle(Part.Circle(V(3.3, -8.4, 0), V(0, 0, 1), 0.2), math.radians(90), math.radians(180)), False)
sketch2.addGeometry(Part.LineSegment(V(3.1, -8.4, 0), V(3.1, -9.5, 0)), False)
sketch2.addGeometry(Part.ArcOfCircle(Part.Circle(V(3.3, -9.5, 0), V(0, 0, 1), 0.2), math.radians(-180), math.radians(-90)), False)
sketch2.addGeometry(Part.LineSegment(V(3.3, -9.7, 0), V(3.65, -9.7, 0)), False)
sketch2.addGeometry(Part.LineSegment(V(-3.65, -8.2, 0), V(-3.65, -9.7, 0)), False)
sketch2.addGeometry(Part.LineSegment(V(-3.65, -9.7, 0), V(-3.3, -9.7, 0)), False)
sketch2.addGeometry(Part.ArcOfCircle(Part.Circle(V(-3.3, -9.5, 0), V(0, 0, 1), 0.2), math.radians(-90), math.radians(0)), False)
sketch2.addGeometry(Part.LineSegment(V(-3.1, -9.5, 0), V(-3.1, -8.4, 0)), False)
sketch2.addGeometry(Part.ArcOfCircle(Part.Circle(V(-3.3, -8.4, 0), V(0, 0, 1), 0.2), math.radians(0), math.radians(90)), False)
sketch2.addGeometry(Part.LineSegment(V(-3.3, -8.2, 0), V(-3.65, -8.2, 0)), False)
sketch2.addGeometry(Part.LineSegment(V(8.2, -3.3, 0), V(8.2, -3.65, 0)), False)
sketch2.addGeometry(Part.LineSegment(V(8.2, -3.65, 0), V(9.7, -3.65, 0)), False)
sketch2.addGeometry(Part.LineSegment(V(9.7, -3.65, 0), V(9.7, -3.3, 0)), False)
sketch2.addGeometry(Part.ArcOfCircle(Part.Circle(V(9.5, -3.3, 0), V(0, 0, 1), 0.2), math.radians(0), math.radians(90)), False)
sketch2.addGeometry(Part.LineSegment(V(9.5, -3.1, 0), V(8.4, -3.1, 0)), False)
sketch2.addGeometry(Part.ArcOfCircle(Part.Circle(V(8.4, -3.3, 0), V(0, 0, 1), 0.2), math.radians(90), math.radians(180)), False)
sketch2.addGeometry(Part.LineSegment(V(-8.2, -3.65, 0), V(-8.2, -3.3, 0)), False)
sketch2.addGeometry(Part.ArcOfCircle(Part.Circle(V(-8.4, -3.3, 0), V(0, 0, 1), 0.2), math.radians(0), math.radians(90)), False)
sketch2.addGeometry(Part.LineSegment(V(-8.4, -3.1, 0), V(-9.5, -3.1, 0)), False)
sketch2.addGeometry(Part.ArcOfCircle(Part.Circle(V(-9.5, -3.3, 0), V(0, 0, 1), 0.2), math.radians(90), math.radians(180)), False)
sketch2.addGeometry(Part.LineSegment(V(-9.7, -3.3, 0), V(-9.7, -3.65, 0)), False)
sketch2.addGeometry(Part.LineSegment(V(-9.7, -3.65, 0), V(-8.2, -3.65, 0)), False)
sketch2.addConstraint(Sketcher.Constraint("Coincident", 0, 2, 1, 1))
sketch2.addConstraint(Sketcher.Constraint("Tangent", 1, 2, 2, 1))
sketch2.addConstraint(Sketcher.Constraint("Tangent", 2, 2, 3, 1))
sketch2.addConstraint(Sketcher.Constraint("Tangent", 3, 2, 4, 1))
sketch2.addConstraint(Sketcher.Constraint("Tangent", 4, 2, 5, 1))
sketch2.addConstraint(Sketcher.Constraint("Coincident", 5, 2, 0, 1))
sketch2.addConstraint(Sketcher.Constraint("Coincident", 6, 2, 7, 1))
sketch2.addConstraint(Sketcher.Constraint("Tangent", 7, 2, 8, 1))
sketch2.addConstraint(Sketcher.Constraint("Tangent", 8, 2, 9, 1))
sketch2.addConstraint(Sketcher.Constraint("Tangent", 9, 2, 10, 1))
sketch2.addConstraint(Sketcher.Constraint("Tangent", 10, 2, 11, 1))
sketch2.addConstraint(Sketcher.Constraint("Coincident", 11, 2, 6, 1))
sketch2.addConstraint(Sketcher.Constraint("Coincident", 12, 2, 13, 1))
sketch2.addConstraint(Sketcher.Constraint("Tangent", 13, 2, 14, 1))
sketch2.addConstraint(Sketcher.Constraint("Tangent", 14, 2, 15, 1))
sketch2.addConstraint(Sketcher.Constraint("Tangent", 15, 2, 16, 1))
sketch2.addConstraint(Sketcher.Constraint("Tangent", 16, 2, 17, 1))
sketch2.addConstraint(Sketcher.Constraint("Coincident", 17, 2, 12, 1))
sketch2.addConstraint(Sketcher.Constraint("Coincident", 18, 2, 19, 1))
sketch2.addConstraint(Sketcher.Constraint("Tangent", 19, 2, 20, 1))
sketch2.addConstraint(Sketcher.Constraint("Tangent", 20, 2, 21, 1))
sketch2.addConstraint(Sketcher.Constraint("Tangent", 21, 2, 22, 1))
sketch2.addConstraint(Sketcher.Constraint("Tangent", 22, 2, 23, 1))
sketch2.addConstraint(Sketcher.Constraint("Coincident", 23, 2, 18, 1))
sketch2.addConstraint(Sketcher.Constraint("Coincident", 24, 2, 25, 1))
sketch2.addConstraint(Sketcher.Constraint("Tangent", 25, 2, 26, 1))
sketch2.addConstraint(Sketcher.Constraint("Tangent", 26, 2, 27, 1))
sketch2.addConstraint(Sketcher.Constraint("Tangent", 27, 2, 28, 1))
sketch2.addConstraint(Sketcher.Constraint("Tangent", 28, 2, 29, 1))
sketch2.addConstraint(Sketcher.Constraint("Coincident", 29, 2, 24, 1))
sketch2.addConstraint(Sketcher.Constraint("Coincident", 30, 2, 31, 1))
sketch2.addConstraint(Sketcher.Constraint("Tangent", 31, 2, 32, 1))
sketch2.addConstraint(Sketcher.Constraint("Tangent", 32, 2, 33, 1))
sketch2.addConstraint(Sketcher.Constraint("Tangent", 33, 2, 34, 1))
sketch2.addConstraint(Sketcher.Constraint("Tangent", 34, 2, 35, 1))
sketch2.addConstraint(Sketcher.Constraint("Coincident", 35, 2, 30, 1))
sketch2.addConstraint(Sketcher.Constraint("Coincident", 36, 2, 37, 1))
sketch2.addConstraint(Sketcher.Constraint("Coincident", 37, 2, 38, 1))
sketch2.addConstraint(Sketcher.Constraint("Tangent", 38, 2, 39, 1))
sketch2.addConstraint(Sketcher.Constraint("Tangent", 39, 2, 40, 1))
sketch2.addConstraint(Sketcher.Constraint("Tangent", 40, 2, 41, 1))
sketch2.addConstraint(Sketcher.Constraint("Tangent", 41, 2, 36, 1))
sketch2.addConstraint(Sketcher.Constraint("Tangent", 42, 2, 43, 1))
sketch2.addConstraint(Sketcher.Constraint("Tangent", 43, 2, 44, 1))
sketch2.addConstraint(Sketcher.Constraint("Tangent", 44, 2, 45, 1))
sketch2.addConstraint(Sketcher.Constraint("Tangent", 45, 2, 46, 1))
sketch2.addConstraint(Sketcher.Constraint("Coincident", 46, 2, 47, 1))
sketch2.addConstraint(Sketcher.Constraint("Coincident", 47, 2, 42, 1))
sketch2.addConstraint(Sketcher.Constraint("Horizontal", 0))
sketch2.addConstraint(Sketcher.Constraint("Vertical", 1))
sketch2.addConstraint(Sketcher.Constraint("Horizontal", 3))
sketch2.addConstraint(Sketcher.Constraint("Vertical", 5))
sketch2.addConstraint(Sketcher.Constraint("Vertical", 6))
sketch2.addConstraint(Sketcher.Constraint("Horizontal", 7))
sketch2.addConstraint(Sketcher.Constraint("Vertical", 9))
sketch2.addConstraint(Sketcher.Constraint("Horizontal", 11))
sketch2.addConstraint(Sketcher.Constraint("Vertical", 12))
sketch2.addConstraint(Sketcher.Constraint("Horizontal", 13))
sketch2.addConstraint(Sketcher.Constraint("Vertical", 15))
sketch2.addConstraint(Sketcher.Constraint("Horizontal", 17))
sketch2.addConstraint(Sketcher.Constraint("Horizontal", 18))
sketch2.addConstraint(Sketcher.Constraint("Vertical", 19))
sketch2.addConstraint(Sketcher.Constraint("Horizontal", 21))
sketch2.addConstraint(Sketcher.Constraint("Vertical", 23))
sketch2.addConstraint(Sketcher.Constraint("Vertical", 24))
sketch2.addConstraint(Sketcher.Constraint("Horizontal", 25))
sketch2.addConstraint(Sketcher.Constraint("Vertical", 27))
sketch2.addConstraint(Sketcher.Constraint("Horizontal", 29))
sketch2.addConstraint(Sketcher.Constraint("Vertical", 30))
sketch2.addConstraint(Sketcher.Constraint("Horizontal", 31))
sketch2.addConstraint(Sketcher.Constraint("Vertical", 33))
sketch2.addConstraint(Sketcher.Constraint("Horizontal", 35))
sketch2.addConstraint(Sketcher.Constraint("Vertical", 36))
sketch2.addConstraint(Sketcher.Constraint("Horizontal", 37))
sketch2.addConstraint(Sketcher.Constraint("Vertical", 38))
sketch2.addConstraint(Sketcher.Constraint("Horizontal", 40))
sketch2.addConstraint(Sketcher.Constraint("Vertical", 42))
sketch2.addConstraint(Sketcher.Constraint("Horizontal", 44))
sketch2.addConstraint(Sketcher.Constraint("Vertical", 46))
sketch2.addConstraint(Sketcher.Constraint("Horizontal", 47))
sketch2.addConstraint(Sketcher.Constraint("Equal", 2, 4))
sketch2.addConstraint(Sketcher.Constraint("Equal", 4, 8))
sketch2.addConstraint(Sketcher.Constraint("Equal", 8, 10))
sketch2.addConstraint(Sketcher.Constraint("Equal", 10, 14))
sketch2.addConstraint(Sketcher.Constraint("Equal", 14, 16))
sketch2.addConstraint(Sketcher.Constraint("Equal", 16, 20))
sketch2.addConstraint(Sketcher.Constraint("Equal", 20, 22))
sketch2.addConstraint(Sketcher.Constraint("Equal", 22, 26))
sketch2.addConstraint(Sketcher.Constraint("Equal", 26, 28))
sketch2.addConstraint(Sketcher.Constraint("Equal", 28, 32))
sketch2.addConstraint(Sketcher.Constraint("Equal", 32, 34))
sketch2.addConstraint(Sketcher.Constraint("Equal", 34, 39))
sketch2.addConstraint(Sketcher.Constraint("Equal", 39, 41))
sketch2.addConstraint(Sketcher.Constraint("Equal", 41, 43))
sketch2.addConstraint(Sketcher.Constraint("Equal", 43, 45))
sketch2.addConstraint(Sketcher.Constraint("Symmetric", 8, 3, 26, 3, -1, 1))
sketch2.addConstraint(Sketcher.Constraint("Symmetric", 14, 3, 32, 3, -1, 1))
sketch2.addConstraint(Sketcher.Constraint("Symmetric", 2, 3, 39, 3, -1, 1))
sketch2.addConstraint(Sketcher.Constraint("Symmetric", 20, 3, 43, 3, -1, 1))
sketch2.addConstraint(Sketcher.Constraint("Symmetric", 11, 2, 29, 2, -1, 1))
sketch2.addConstraint(Sketcher.Constraint("Symmetric", 17, 2, 35, 2, -1, 1))
sketch2.addConstraint(Sketcher.Constraint("Symmetric", 5, 2, 36, 2, -1, 1))
sketch2.addConstraint(Sketcher.Constraint("Symmetric", 23, 2, 46, 2, -1, 1))
sketch2.addConstraint(Sketcher.Constraint("Symmetric", 10, 3, 14, 3, -2))
sketch2.addConstraint(Sketcher.Constraint("Symmetric", 4, 3, 20, 3, -2))
sketch2.addConstraint(Sketcher.Constraint("Symmetric", 6, 2, 17, 2, -2))
sketch2.addConstraint(Sketcher.Constraint("Symmetric", 0, 2, 23, 2, -2))
sketch2.addConstraint(Sketcher.Constraint("Equal", 35, 1))
sketch2.addConstraint(Sketcher.Constraint("Equal", 47, 6))
sketch2.addConstraint(Sketcher.Constraint("Radius", 2, Q("0.2 mm")))
sketch2.addConstraint(Sketcher.Constraint("DistanceX", 0, 2, 0, 1, Q("1.5 mm")))
sketch2.addConstraint(Sketcher.Constraint("DistanceX", 7, 1, 7, 2, Q("0.35 mm")))
sketch2.addConstraint(Sketcher.Constraint("DistanceX", 2, 3, -1, 1, Q("9.5 mm")))
sketch2.addConstraint(Sketcher.Constraint("DistanceY", -1, 1, 2, 3, Q("3.3 mm")))
sketch2.addConstraint(Sketcher.Constraint("DistanceX", 8, 3, -1, 1, Q("3.3 mm")))
sketch2.addConstraint(Sketcher.Constraint("DistanceY", -1, 1, 8, 3, Q("8.4 mm")))
sketch2.setExpression("Constraints[109]", "Params.sketch2_radius")
sketch2.setExpression("Constraints[110]", "Params.sketch2_width")
sketch2.setExpression("Constraints[111]", "Params.sketch2_width2")
pad2 = body.newObject("PartDesign::Pad", "Pad001")
pad2.Profile = sketch2
pad2.setExpression("Length", "Params.pad2_length")
pad2.Reversed = True

doc.recompute()
